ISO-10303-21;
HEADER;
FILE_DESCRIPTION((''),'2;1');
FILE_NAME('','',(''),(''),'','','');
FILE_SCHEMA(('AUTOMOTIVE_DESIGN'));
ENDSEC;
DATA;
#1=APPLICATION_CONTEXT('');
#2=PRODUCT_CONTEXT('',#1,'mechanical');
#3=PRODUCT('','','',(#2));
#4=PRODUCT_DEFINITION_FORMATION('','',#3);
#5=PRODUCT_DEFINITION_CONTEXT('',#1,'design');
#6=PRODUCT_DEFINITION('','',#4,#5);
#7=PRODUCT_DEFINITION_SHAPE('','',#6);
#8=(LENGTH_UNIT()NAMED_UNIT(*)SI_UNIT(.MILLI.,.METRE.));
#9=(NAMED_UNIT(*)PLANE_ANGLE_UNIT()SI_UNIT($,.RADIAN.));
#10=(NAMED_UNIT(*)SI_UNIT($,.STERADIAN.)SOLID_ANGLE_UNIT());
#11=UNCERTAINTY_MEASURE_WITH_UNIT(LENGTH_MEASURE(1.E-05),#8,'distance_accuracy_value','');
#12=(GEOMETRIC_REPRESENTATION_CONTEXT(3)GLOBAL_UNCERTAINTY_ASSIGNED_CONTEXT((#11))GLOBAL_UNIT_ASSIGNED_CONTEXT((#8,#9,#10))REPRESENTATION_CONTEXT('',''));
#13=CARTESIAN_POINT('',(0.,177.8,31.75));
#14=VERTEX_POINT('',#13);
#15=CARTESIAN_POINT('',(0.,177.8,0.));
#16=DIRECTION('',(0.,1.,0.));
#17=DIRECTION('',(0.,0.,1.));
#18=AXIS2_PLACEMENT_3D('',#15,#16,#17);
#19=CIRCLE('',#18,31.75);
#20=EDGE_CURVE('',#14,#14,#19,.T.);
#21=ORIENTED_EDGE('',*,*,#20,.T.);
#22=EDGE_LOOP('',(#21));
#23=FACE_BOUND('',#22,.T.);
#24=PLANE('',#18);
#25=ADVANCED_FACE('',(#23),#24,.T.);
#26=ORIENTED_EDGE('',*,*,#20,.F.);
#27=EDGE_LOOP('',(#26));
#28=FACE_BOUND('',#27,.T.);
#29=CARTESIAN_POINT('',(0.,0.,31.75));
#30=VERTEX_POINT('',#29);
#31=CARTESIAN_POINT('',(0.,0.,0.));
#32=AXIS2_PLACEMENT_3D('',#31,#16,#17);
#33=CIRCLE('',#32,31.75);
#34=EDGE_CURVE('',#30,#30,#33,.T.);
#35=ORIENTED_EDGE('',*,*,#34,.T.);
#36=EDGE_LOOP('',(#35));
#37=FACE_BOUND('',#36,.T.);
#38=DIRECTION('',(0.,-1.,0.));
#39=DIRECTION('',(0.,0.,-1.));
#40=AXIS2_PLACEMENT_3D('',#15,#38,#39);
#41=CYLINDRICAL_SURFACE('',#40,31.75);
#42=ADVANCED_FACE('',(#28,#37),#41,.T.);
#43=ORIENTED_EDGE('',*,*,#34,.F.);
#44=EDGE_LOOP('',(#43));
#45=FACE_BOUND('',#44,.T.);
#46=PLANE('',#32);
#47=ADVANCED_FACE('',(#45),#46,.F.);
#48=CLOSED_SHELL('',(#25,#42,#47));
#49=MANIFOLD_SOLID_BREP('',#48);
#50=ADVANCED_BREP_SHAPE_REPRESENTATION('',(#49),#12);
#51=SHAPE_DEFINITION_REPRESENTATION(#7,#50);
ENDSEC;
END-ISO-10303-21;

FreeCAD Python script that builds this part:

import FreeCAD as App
import Part
import Sketcher
Q = App.Units.Quantity

doc = App.newDocument("Part")
params = doc.addObject("Spreadsheet::Sheet", "Params")
for row, (alias, value) in enumerate([
    ("sketch1_diameter", "2.5 in"),
    ("pad1_length", "7 in"),
], start=1):
    params.set(f"A{row}", alias)
    params.set(f"B{row}", "=" + value)
    params.setAlias(f"B{row}", alias)

body = doc.addObject("PartDesign::Body", "Body")

# Sketch on XZ plane
sketch1 = body.newObject("Sketcher::SketchObject", "Sketch")
sketch1.AttachmentSupport = (doc.getObject("XZ_Plane"), [""])
sketch1.MapMode = "FlatFace"
sketch1.addGeometry(Part.Circle(App.Vector(0, 0, 0), App.Vector(0, 0, 1), 32), False)
sketch1.addConstraint(Sketcher.Constraint("Coincident", 0, 3, -1, 1))
sketch1.addConstraint(Sketcher.Constraint("Diameter", 0, Q("2.5 in")))
sketch1.setExpression("Constraints[1]", "Params.sketch1_diameter")
pad1 = body.newObject("PartDesign::Pad", "Pad")
pad1.Profile = sketch1
pad1.setExpression("Length", "Params.pad1_length")
pad1.Reversed = True

doc.recompute()
